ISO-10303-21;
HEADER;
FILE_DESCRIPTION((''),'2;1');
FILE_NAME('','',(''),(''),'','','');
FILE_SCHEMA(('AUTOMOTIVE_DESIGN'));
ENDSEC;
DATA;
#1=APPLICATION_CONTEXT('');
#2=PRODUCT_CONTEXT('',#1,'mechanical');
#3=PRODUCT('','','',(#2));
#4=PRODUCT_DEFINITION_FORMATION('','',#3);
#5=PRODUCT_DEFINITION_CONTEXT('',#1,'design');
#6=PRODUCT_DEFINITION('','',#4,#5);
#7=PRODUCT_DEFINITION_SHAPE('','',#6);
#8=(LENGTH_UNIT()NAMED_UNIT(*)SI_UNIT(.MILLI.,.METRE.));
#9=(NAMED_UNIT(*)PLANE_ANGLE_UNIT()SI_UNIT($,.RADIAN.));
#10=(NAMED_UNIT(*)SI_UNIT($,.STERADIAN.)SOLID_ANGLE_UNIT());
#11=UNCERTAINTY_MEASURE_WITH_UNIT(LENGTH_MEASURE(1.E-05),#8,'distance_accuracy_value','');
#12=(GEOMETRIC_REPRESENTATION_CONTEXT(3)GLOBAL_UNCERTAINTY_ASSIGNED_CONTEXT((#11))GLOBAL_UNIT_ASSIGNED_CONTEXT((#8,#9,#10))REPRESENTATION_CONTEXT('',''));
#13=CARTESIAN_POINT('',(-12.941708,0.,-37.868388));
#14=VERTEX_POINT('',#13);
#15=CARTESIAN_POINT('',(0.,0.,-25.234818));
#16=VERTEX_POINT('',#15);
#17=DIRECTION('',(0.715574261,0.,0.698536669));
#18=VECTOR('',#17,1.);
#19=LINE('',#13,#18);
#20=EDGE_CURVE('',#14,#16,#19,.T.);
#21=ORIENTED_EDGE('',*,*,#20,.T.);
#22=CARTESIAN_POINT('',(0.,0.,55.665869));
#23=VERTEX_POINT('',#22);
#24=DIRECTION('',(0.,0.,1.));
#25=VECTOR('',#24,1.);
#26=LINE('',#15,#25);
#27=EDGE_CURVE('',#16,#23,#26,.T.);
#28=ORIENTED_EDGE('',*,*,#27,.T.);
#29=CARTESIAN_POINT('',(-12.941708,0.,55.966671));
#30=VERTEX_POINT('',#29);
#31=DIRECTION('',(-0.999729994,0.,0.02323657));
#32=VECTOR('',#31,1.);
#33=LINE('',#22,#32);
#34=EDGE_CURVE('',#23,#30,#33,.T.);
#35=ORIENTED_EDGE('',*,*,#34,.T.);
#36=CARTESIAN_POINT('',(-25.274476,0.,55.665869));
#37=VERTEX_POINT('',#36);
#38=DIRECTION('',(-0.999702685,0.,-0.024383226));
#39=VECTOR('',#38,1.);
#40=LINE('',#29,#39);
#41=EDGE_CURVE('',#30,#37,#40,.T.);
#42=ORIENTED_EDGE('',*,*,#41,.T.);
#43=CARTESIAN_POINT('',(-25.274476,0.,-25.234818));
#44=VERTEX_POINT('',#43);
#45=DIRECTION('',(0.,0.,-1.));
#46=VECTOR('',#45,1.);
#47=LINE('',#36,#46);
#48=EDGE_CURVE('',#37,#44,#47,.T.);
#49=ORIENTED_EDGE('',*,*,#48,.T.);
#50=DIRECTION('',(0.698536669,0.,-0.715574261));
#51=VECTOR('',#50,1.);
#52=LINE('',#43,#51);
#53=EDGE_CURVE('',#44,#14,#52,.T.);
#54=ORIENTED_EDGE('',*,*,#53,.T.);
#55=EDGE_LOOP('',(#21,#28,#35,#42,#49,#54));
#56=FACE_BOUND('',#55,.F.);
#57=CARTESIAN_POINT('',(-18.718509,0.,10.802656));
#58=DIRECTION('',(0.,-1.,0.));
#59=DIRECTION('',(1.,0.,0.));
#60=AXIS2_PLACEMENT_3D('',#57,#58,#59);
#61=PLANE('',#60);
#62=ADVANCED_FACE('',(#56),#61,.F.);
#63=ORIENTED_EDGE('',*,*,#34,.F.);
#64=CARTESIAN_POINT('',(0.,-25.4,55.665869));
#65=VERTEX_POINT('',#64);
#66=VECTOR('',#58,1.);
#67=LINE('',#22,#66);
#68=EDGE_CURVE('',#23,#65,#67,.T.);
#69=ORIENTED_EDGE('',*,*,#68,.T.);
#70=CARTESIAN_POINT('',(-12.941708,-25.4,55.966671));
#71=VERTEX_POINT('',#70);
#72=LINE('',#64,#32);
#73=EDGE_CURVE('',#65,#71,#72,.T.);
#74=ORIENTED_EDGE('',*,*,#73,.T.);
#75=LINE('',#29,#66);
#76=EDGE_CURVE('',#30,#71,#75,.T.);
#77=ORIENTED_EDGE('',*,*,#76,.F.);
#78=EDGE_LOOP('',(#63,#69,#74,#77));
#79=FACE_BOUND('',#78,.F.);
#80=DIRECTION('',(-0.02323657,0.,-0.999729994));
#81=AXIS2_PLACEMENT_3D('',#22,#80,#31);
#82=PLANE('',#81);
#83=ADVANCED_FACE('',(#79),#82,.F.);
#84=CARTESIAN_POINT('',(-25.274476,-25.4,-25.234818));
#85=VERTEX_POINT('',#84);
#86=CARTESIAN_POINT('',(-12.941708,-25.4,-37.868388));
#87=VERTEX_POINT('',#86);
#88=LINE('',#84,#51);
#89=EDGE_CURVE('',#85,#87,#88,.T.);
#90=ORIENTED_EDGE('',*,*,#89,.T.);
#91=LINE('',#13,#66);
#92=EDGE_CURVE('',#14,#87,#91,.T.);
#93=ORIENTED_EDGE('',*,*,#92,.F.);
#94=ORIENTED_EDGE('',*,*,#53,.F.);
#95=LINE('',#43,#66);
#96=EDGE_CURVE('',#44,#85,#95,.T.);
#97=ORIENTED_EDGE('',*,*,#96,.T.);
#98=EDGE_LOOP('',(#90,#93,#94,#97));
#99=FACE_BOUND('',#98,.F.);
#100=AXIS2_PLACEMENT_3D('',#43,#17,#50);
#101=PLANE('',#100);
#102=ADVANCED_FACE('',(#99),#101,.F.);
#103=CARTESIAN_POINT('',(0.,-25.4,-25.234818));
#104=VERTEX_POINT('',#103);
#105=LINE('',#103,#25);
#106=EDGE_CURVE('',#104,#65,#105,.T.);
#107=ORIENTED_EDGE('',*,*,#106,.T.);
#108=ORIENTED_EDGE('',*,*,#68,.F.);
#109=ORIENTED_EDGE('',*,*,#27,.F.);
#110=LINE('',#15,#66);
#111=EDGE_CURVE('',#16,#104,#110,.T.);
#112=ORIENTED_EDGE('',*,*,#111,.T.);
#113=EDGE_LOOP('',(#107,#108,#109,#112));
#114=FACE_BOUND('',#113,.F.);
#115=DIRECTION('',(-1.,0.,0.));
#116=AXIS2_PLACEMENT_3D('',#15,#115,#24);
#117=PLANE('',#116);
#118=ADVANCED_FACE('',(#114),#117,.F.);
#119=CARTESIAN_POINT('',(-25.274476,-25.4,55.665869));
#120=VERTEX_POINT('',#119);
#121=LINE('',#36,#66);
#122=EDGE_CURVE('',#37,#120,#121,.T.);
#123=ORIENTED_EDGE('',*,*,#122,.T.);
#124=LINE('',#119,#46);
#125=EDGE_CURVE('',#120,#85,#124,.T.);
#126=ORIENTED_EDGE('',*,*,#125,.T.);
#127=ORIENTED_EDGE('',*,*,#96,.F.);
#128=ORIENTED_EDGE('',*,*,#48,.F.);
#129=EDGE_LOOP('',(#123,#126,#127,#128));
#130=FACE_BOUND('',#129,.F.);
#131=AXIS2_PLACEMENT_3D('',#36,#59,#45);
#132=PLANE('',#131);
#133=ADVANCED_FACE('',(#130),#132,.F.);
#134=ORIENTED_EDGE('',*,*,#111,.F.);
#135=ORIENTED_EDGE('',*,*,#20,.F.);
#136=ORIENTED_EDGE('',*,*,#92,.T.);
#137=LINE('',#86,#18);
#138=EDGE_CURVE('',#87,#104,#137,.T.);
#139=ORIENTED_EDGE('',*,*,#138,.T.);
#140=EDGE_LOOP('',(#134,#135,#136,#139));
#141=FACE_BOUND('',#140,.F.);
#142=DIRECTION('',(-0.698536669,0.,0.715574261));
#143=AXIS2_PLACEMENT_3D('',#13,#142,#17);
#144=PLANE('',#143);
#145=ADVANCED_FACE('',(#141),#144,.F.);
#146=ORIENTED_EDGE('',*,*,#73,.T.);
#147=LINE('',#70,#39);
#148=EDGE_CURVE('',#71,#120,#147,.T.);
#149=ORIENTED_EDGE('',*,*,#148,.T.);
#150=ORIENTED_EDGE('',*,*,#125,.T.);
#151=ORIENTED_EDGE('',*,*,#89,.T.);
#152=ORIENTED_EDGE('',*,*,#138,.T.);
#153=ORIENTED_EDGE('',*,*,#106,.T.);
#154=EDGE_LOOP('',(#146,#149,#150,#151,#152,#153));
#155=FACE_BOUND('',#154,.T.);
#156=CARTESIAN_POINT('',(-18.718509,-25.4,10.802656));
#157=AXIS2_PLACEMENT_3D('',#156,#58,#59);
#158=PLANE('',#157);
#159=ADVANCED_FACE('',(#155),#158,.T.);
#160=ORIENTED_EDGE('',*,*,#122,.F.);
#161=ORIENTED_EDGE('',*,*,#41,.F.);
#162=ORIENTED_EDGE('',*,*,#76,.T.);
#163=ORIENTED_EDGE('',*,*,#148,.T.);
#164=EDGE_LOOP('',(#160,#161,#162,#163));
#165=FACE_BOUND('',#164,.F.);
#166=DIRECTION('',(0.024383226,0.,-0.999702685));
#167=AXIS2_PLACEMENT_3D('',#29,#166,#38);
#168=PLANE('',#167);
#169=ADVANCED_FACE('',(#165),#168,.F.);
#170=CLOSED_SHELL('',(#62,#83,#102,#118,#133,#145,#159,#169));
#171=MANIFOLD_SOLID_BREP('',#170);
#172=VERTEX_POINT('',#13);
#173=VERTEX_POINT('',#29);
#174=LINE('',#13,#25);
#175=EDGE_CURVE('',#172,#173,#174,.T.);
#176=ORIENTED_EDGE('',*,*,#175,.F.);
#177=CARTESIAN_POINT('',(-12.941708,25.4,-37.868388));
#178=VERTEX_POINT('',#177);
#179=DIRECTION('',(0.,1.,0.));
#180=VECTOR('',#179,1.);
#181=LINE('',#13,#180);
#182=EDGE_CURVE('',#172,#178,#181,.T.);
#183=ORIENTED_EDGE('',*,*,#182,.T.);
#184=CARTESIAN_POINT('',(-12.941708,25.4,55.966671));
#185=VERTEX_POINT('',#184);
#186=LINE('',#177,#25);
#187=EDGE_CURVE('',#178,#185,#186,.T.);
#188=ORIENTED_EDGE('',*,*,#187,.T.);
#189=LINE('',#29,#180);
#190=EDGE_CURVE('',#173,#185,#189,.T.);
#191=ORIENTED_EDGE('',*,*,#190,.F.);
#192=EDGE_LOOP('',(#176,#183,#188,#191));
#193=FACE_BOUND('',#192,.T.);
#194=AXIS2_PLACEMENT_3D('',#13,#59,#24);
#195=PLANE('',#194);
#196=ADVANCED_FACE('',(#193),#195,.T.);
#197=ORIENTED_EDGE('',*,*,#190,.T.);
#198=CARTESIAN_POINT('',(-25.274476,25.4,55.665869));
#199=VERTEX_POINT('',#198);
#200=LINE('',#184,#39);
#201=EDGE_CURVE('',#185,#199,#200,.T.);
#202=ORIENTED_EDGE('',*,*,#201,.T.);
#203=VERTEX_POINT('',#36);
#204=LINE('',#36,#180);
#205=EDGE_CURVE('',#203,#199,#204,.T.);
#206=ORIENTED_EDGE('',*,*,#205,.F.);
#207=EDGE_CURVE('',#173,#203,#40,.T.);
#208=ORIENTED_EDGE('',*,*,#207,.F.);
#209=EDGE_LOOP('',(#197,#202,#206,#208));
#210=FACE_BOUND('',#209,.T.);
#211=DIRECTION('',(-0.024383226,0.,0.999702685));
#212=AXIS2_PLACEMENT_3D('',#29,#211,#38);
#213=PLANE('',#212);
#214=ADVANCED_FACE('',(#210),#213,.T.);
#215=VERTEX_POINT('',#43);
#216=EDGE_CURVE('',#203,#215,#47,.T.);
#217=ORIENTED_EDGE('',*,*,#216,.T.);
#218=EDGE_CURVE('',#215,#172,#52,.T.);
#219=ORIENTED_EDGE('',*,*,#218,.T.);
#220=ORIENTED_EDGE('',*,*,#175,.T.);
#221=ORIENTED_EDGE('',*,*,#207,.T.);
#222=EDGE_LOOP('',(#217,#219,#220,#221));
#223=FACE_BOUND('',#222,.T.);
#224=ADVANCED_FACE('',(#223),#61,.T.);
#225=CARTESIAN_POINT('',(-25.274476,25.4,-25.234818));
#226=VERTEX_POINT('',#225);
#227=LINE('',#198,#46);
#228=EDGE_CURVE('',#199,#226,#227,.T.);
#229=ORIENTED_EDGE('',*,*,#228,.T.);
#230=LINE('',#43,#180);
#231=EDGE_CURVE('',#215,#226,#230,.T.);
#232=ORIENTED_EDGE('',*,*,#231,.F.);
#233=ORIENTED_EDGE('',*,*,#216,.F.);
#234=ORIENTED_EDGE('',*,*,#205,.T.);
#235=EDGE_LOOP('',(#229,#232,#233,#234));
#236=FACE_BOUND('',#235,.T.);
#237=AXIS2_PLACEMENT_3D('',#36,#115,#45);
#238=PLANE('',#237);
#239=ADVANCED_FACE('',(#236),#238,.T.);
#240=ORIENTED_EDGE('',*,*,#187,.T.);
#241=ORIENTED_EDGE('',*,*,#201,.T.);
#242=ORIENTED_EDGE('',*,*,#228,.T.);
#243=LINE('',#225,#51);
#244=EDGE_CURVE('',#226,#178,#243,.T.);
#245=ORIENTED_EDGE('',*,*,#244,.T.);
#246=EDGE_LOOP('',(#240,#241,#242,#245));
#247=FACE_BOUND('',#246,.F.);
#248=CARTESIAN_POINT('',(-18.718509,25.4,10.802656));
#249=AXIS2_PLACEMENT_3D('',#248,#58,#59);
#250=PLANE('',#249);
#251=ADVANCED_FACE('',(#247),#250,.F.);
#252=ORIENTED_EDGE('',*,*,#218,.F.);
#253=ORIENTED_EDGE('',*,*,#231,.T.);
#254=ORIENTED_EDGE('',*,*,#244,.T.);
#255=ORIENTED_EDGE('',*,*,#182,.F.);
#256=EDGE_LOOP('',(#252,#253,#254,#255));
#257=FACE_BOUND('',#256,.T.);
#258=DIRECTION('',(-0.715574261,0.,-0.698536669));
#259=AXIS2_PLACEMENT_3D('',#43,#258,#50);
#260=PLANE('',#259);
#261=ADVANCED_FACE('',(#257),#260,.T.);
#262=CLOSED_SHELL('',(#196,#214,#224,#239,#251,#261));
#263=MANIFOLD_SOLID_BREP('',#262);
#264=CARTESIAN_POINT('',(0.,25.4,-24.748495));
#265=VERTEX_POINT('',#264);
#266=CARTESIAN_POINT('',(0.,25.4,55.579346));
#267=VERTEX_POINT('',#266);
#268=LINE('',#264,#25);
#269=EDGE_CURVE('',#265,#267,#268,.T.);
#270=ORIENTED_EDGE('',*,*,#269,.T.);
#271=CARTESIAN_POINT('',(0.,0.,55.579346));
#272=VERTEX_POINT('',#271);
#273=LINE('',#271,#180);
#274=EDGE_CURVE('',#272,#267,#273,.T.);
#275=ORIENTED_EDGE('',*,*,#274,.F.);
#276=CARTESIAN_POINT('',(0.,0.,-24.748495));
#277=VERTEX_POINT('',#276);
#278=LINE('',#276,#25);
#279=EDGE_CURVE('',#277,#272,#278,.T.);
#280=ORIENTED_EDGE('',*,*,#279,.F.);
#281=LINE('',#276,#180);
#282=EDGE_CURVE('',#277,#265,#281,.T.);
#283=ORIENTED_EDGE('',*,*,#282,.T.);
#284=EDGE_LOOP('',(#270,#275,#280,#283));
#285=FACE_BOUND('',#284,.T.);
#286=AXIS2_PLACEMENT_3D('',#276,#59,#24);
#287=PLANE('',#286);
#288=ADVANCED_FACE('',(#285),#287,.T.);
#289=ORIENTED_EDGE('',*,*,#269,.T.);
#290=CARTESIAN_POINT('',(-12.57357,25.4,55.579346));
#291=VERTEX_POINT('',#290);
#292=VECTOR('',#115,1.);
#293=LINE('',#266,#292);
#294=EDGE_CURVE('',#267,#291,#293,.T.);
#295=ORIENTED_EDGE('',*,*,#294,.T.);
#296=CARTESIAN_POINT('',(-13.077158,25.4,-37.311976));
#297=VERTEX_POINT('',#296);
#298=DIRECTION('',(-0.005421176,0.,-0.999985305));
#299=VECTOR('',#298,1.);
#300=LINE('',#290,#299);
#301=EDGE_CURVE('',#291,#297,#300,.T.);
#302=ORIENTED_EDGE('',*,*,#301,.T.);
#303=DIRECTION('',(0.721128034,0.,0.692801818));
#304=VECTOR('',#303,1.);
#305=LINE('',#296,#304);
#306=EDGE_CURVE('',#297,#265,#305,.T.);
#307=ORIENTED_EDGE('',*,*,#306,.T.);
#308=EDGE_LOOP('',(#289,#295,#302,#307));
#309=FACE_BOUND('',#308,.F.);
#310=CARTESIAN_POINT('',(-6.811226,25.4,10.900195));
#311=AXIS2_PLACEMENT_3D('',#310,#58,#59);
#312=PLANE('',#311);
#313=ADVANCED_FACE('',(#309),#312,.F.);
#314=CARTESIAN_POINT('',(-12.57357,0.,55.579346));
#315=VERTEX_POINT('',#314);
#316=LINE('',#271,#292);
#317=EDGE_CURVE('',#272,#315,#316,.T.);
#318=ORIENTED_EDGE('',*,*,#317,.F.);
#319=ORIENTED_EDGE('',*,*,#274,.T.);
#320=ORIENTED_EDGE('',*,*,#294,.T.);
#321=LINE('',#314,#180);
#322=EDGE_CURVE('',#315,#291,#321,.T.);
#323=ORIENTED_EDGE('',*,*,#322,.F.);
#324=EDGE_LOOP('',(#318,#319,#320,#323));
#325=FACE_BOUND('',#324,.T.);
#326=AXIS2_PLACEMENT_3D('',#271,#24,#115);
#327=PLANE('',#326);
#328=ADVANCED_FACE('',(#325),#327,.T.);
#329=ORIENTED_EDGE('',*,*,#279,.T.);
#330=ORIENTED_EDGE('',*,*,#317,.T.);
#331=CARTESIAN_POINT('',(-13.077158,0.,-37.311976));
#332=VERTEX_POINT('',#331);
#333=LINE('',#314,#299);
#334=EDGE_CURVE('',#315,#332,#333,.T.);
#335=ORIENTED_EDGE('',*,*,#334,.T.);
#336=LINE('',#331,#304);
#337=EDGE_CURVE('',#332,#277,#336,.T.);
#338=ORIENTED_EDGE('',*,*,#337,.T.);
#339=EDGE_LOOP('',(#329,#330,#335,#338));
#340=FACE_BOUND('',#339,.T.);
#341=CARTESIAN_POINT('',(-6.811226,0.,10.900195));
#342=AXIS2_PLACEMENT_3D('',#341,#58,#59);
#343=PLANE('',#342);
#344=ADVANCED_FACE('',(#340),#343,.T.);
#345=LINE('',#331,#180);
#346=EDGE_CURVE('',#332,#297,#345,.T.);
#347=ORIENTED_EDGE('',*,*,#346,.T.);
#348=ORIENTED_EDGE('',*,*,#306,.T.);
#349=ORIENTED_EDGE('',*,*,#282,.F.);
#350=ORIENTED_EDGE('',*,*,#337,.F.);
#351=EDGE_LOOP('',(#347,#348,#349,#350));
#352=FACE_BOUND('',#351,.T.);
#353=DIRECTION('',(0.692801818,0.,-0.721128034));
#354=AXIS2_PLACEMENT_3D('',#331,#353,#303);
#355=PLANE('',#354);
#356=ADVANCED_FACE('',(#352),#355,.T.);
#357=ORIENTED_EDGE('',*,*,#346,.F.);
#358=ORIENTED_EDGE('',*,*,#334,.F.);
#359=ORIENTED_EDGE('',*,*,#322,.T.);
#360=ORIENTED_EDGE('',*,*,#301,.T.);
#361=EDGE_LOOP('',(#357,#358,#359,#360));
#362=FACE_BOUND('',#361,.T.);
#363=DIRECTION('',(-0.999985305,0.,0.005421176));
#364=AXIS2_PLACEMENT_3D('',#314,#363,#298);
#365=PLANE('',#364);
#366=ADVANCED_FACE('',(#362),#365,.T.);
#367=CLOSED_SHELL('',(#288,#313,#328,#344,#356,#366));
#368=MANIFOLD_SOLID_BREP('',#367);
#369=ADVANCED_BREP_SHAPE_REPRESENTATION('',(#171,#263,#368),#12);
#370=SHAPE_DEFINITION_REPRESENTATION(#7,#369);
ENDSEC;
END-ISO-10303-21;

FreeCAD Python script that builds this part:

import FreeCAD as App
import Part
import Sketcher
from FreeCAD import Vector
Q = App.Units.Quantity


def add_polygon(sketch, points):
    """Adds a closed chain of lines whose ends are joined by coincident constraints."""
    first, n = sketch.GeometryCount, len(points)
    for a, b in zip(points, points[1:] + points[:1]):
        sketch.addGeometry(Part.LineSegment(App.Vector(*a, 0), App.Vector(*b, 0)), False)
    for i in range(n):
        sketch.addConstraint(Sketcher.Constraint("Coincident", first + i, 2, first + (i + 1) % n, 1))

doc = App.newDocument("Part")
params = doc.addObject("Spreadsheet::Sheet", "Params")
for row, (alias, value) in enumerate([
    ("pad1_length", "1 in"),
    ("pad2_length", "1 in"),
    ("pad3_length", "1 in"),
], start=1):
    params.set(f"A{row}", alias)
    params.set(f"B{row}", "=" + value)
    params.setAlias(f"B{row}", alias)

body = doc.addObject("PartDesign::Body", "Body")

# Sketch on XZ plane
sketch1 = body.newObject("Sketcher::SketchObject", "Sketch")
sketch1.AttachmentSupport = (doc.getObject("XZ_Plane"), [""])
sketch1.MapMode = "FlatFace"
add_polygon(sketch1, [(-12.941708, 55.966671), (-25.274476, 55.665869), (-25.274476, -25.234818), (-12.941708, -37.868388), (0, -25.234818), (0, 55.665869)])  # lines 0-5
sketch1.addConstraint([
    Sketcher.Constraint("Vertical", 1),
    Sketcher.Constraint("Vertical", 4),
    Sketcher.Constraint("PointOnObject", 3, 2, -2),
    Sketcher.Constraint("Perpendicular", 2, 3),
    Sketcher.Constraint("Horizontal", 1, 2, 3, 2),
    Sketcher.Constraint("Horizontal", 0, 2, 4, 2),
    Sketcher.Constraint("Vertical", 2, 2, 5, 2),
    Sketcher.Constraint("Distance", 2, Q("17.655148 mm")),
    Sketcher.Constraint("DistanceY", 1, 2, 1, 1, Q("80.900688 mm")),
    Sketcher.Constraint("DistanceY", -1, 1, 0, 2, Q("55.665869 mm")),
    Sketcher.Constraint("DistanceY", 2, 2, -1, 1, Q("37.868388 mm")),
    Sketcher.Constraint("DistanceY", -1, 1, 5, 2, Q("55.966671 mm")),
])
pad1 = body.newObject("PartDesign::Pad", "Pad")
pad1.Profile = sketch1
pad1.setExpression("Length", "Params.pad1_length")
body2 = doc.addObject("PartDesign::Body", "Body001")

# Sketch on XZ plane
sketch2 = body2.newObject("Sketcher::SketchObject", "Sketch001")
sketch2.AttachmentSupport = (doc.getObject("XZ_Plane001"), [""])
sketch2.MapMode = "FlatFace"
add_polygon(sketch2, [(-12.941708, 55.966671), (-25.274476, 55.665869), (-25.274476, -25.234818), (-12.941708, -37.868388)])  # lines 0-3
sketch2.addConstraint([
    Sketcher.Constraint("Vertical", 1),
    Sketcher.Constraint("Vertical", 3),
    Sketcher.Constraint("DistanceY", 3, 1, 3, 2, Q("93.83506 mm")),
    Sketcher.Constraint("Distance", 2, Q("17.655148 mm")),
    Sketcher.Constraint("DistanceY", 1, 2, 1, 1, Q("80.900688 mm")),
    Sketcher.Constraint("DistanceY", -1, 1, 0, 2, Q("55.665869 mm")),
    Sketcher.Constraint("DistanceY", 2, 2, -1, 1, Q("37.868388 mm")),
    Sketcher.Constraint("DistanceX", 0, 2, -1, 1, Q("25.274476 mm")),
])
pad2 = body2.newObject("PartDesign::Pad", "Pad001")
pad2.Profile = sketch2
pad2.setExpression("Length", "Params.pad2_length")
pad2.Reversed = True
body3 = doc.addObject("PartDesign::Body", "Body002")

# Sketch on XZ plane
sketch3 = body3.newObject("Sketcher::SketchObject", "Sketch002")
sketch3.AttachmentSupport = (doc.getObject("XZ_Plane002"), [""])
sketch3.MapMode = "FlatFace"
add_polygon(sketch3, [(0, -24.748495), (0, 55.579346), (-12.57357, 55.579346), (-13.077158, -37.311976)])  # lines 0-3
sketch3.addConstraint([
    Sketcher.Constraint("Vertical", 0),
    Sketcher.Constraint("Horizontal", 1),
    Sketcher.Constraint("PointOnObject", 0, 2, -2),
    Sketcher.Constraint("DistanceX", 1, 2, 1, 1, Q("12.57357 mm")),
    Sketcher.Constraint("DistanceY", 0, 1, 0, 2, Q("80.327841 mm")),
    Sketcher.Constraint("DistanceY", 2, 2, 1, 2, Q("92.891322 mm")),
    Sketcher.Constraint("Distance", 2, Q("92.892687 mm")),
    Sketcher.Constraint("DistanceY", -1, 1, 0, 2, Q("55.579346 mm")),
])
pad3 = body3.newObject("PartDesign::Pad", "Pad002")
pad3.Profile = sketch3
pad3.setExpression("Length", "Params.pad3_length")
pad3.Reversed = True

doc.recompute()
